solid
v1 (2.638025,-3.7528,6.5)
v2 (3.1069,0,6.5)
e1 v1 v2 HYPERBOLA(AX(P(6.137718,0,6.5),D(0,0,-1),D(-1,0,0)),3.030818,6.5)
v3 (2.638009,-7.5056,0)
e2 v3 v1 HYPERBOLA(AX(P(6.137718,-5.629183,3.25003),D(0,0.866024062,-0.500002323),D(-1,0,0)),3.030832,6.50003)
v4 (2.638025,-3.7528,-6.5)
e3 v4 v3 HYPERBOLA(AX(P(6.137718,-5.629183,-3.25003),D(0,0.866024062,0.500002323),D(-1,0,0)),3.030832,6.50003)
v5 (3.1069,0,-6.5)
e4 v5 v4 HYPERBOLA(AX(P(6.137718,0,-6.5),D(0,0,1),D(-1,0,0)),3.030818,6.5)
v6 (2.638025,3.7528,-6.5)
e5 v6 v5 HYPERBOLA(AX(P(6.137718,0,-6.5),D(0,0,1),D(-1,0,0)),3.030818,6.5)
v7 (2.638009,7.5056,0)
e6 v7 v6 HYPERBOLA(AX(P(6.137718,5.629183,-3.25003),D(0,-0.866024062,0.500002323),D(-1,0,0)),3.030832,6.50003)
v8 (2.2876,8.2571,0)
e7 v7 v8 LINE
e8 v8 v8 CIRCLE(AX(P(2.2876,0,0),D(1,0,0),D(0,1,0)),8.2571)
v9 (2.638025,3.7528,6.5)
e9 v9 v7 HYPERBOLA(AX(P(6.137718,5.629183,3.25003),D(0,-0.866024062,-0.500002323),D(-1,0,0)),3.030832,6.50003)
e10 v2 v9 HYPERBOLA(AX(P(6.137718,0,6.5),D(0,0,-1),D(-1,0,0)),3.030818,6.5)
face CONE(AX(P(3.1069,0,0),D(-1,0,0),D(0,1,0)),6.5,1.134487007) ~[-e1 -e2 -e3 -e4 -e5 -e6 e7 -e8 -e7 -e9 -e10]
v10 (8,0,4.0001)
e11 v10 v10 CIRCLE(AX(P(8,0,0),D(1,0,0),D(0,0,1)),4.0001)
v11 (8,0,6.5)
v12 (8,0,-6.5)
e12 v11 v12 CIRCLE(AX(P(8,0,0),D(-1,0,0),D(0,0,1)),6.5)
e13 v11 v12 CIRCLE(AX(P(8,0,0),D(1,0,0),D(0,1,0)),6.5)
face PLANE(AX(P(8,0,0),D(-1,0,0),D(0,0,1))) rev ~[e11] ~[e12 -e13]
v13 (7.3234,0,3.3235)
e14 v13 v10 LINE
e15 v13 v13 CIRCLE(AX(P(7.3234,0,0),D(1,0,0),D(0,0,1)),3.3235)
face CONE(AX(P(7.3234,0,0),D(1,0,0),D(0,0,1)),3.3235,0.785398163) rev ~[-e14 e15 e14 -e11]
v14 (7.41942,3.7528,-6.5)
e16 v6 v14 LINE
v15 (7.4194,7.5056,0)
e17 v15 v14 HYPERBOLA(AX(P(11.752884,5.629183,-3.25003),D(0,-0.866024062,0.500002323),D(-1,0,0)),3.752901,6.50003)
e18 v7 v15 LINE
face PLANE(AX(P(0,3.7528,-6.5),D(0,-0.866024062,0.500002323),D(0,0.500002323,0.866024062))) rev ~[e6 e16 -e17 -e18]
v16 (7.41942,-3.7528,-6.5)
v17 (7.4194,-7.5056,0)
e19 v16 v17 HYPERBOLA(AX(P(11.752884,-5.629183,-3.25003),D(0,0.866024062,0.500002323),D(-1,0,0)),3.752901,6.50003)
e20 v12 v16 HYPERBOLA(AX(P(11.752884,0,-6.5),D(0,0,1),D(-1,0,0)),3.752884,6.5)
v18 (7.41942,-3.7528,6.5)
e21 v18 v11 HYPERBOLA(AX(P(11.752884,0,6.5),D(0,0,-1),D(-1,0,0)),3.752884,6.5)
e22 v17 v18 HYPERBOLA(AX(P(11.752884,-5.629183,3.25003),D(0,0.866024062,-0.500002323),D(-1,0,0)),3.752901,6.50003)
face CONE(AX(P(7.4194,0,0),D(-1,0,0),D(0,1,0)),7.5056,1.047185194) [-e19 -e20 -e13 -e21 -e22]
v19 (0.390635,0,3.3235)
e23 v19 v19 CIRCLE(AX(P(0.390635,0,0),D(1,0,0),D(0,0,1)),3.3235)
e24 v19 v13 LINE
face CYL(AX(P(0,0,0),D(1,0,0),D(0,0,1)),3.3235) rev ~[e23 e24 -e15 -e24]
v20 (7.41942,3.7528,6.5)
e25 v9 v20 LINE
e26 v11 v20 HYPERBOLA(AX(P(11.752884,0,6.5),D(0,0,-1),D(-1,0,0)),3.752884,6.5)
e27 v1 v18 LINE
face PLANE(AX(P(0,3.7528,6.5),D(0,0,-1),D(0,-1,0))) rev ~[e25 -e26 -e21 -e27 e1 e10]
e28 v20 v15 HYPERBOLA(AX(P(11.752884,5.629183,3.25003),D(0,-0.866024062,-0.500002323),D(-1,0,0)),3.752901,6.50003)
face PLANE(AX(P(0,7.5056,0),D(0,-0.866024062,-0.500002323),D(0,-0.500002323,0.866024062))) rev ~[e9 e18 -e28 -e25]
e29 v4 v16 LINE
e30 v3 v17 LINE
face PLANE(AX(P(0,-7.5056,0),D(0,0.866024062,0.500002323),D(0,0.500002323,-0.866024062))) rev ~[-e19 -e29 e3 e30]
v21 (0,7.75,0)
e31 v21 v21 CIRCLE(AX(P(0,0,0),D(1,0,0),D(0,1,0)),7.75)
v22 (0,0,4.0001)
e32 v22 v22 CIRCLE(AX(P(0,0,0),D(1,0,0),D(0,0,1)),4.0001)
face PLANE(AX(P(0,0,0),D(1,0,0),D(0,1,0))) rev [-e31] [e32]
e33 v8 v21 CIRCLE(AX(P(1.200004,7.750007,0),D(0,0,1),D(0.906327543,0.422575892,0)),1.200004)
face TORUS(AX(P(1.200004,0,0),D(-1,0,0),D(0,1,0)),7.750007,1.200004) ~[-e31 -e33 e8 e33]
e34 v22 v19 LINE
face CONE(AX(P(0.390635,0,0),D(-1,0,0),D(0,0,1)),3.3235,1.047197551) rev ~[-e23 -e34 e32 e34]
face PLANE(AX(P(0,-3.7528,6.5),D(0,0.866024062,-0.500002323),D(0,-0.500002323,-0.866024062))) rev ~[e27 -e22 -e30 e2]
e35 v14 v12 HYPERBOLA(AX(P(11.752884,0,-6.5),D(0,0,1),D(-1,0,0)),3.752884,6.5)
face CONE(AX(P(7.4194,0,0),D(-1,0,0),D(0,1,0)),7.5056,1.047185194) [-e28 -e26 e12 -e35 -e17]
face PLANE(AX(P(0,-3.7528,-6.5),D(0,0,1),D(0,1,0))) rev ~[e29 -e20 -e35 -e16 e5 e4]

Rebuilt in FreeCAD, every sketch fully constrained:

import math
import FreeCAD as App
import Part
import Sketcher
from FreeCAD import Vector
Q = App.Units.Quantity


def edges_at(feature, points):
    """Names of the edges that pass closest to the given points."""
    edges = feature.Shape.Edges
    near = lambda p: min(range(len(edges)), key=lambda i: edges[i].distToShape(Part.Vertex(*p))[0])
    return sorted({f"Edge{near(p) + 1}" for p in points})

doc = App.newDocument("Part")
body = doc.addObject("PartDesign::Body", "Body")

# Sketch on XY plane
sketch1 = body.newObject("Sketcher::SketchObject", "Sketch")
sketch1.AttachmentSupport = (doc.getObject("XY_Plane"), [""])
sketch1.MapMode = "FlatFace"
sketch1.addGeometry([
    Part.LineSegment(Vector(0, 7.8, 0), Vector(0, 0, 0)),  # 0
    Part.LineSegment(Vector(0, 0, 0), Vector(3.1, 0, 0)),  # 1
    Part.LineSegment(Vector(3.1, 0, 0), Vector(3.1, 6.5, 0)),  # 2
    Part.LineSegment(Vector(3.1, 6.5, 0), Vector(2.3, 8.3, 0)),  # 3
    Part.ArcOfCircle(Part.Circle(Vector(1.2, 7.8, 0), Vector(0, 0, 1), 1.2), math.radians(25), math.radians(180)),  # 4
], False)
sketch1.addConstraint([
    Sketcher.Constraint("Coincident", 0, 2, 1, 1),
    Sketcher.Constraint("Coincident", 1, 2, 2, 1),
    Sketcher.Constraint("Coincident", 2, 2, 3, 1),
    Sketcher.Constraint("Tangent", 3, 2, 4, 1),
    Sketcher.Constraint("Tangent", 4, 2, 0, 1),
    Sketcher.Constraint("Vertical", 0),
    Sketcher.Constraint("Horizontal", 1),
    Sketcher.Constraint("Vertical", 2),
    Sketcher.Constraint("Coincident", 0, 2, -1, 1),
    Sketcher.Constraint("Radius", 4, Q("1.2 mm")),
    Sketcher.Constraint("DistanceY", 2, 1, 2, 2, Q("6.5 mm")),
    Sketcher.Constraint("DistanceY", 0, 2, 0, 1, Q("7.75 mm")),
    Sketcher.Constraint("DistanceX", 1, 1, 1, 2, Q("3.107 mm")),
])
revolution = body.newObject("PartDesign::Revolution", "Revolution")
revolution.Profile = sketch1
revolution.ReferenceAxis = (sketch1, ["H_Axis"])
revolution.Angle = 360

# Sketch on YZ plane
sketch2 = body.newObject("Sketcher::SketchObject", "Sketch001")
sketch2.AttachmentSupport = (doc.getObject("YZ_Plane"), [""])
sketch2.MapMode = "FlatFace"
sketch2.addGeometry([
    Part.LineSegment(Vector(4, -6, 0), Vector(-4, -6, 0)),  # 0
    Part.LineSegment(Vector(-4, -6, 0), Vector(-8, 0, 0)),  # 1
    Part.LineSegment(Vector(-8, 0, 0), Vector(-4, 6, 0)),  # 2
    Part.LineSegment(Vector(-4, 6, 0), Vector(4, 6, 0)),  # 3
    Part.LineSegment(Vector(4, 6, 0), Vector(8, 0, 0)),  # 4
    Part.LineSegment(Vector(8, 0, 0), Vector(4, -6, 0)),  # 5
], False)
sketch2.addConstraint([
    Sketcher.Constraint("Coincident", 0, 2, 1, 1),
    Sketcher.Constraint("Coincident", 1, 2, 2, 1),
    Sketcher.Constraint("Coincident", 2, 2, 3, 1),
    Sketcher.Constraint("Coincident", 3, 2, 4, 1),
    Sketcher.Constraint("Coincident", 4, 2, 5, 1),
    Sketcher.Constraint("Coincident", 5, 2, 0, 1),
    Sketcher.Constraint("Horizontal", 0),
    Sketcher.Constraint("Horizontal", 3),
    Sketcher.Constraint("Symmetric", 0, 2, 3, 2, -1, 1),
    Sketcher.Constraint("Symmetric", 1, 2, 4, 2, -1, 1),
    Sketcher.Constraint("PointOnObject", 1, 2, -1),
    Sketcher.Constraint("Parallel", 2, 5),
    Sketcher.Constraint("Vertical", 0, 2, 2, 2),
    Sketcher.Constraint("Angle", 1, Q("120.0002 deg")),
    Sketcher.Constraint("DistanceY", 0, 2, 2, 2, Q("13 mm")),
    Sketcher.Constraint("DistanceX", 1, 2, 4, 2, Q("15.0112 mm")),
])
pad1 = body.newObject("PartDesign::Pad", "Pad")
pad1.Profile = sketch2
pad1.Length = 8

# Sketch on XY plane
sketch3 = body.newObject("Sketcher::SketchObject", "Sketch002")
sketch3.AttachmentSupport = (doc.getObject("XY_Plane"), [""])
sketch3.MapMode = "FlatFace"
sketch3.addGeometry([
    Part.LineSegment(Vector(8, 7.5, 0), Vector(7.4, 7.5, 0)),
    Part.LineSegment(Vector(7.4, 7.5, 0), Vector(8, 6.5, 0)),
    Part.LineSegment(Vector(8, 6.5, 0), Vector(8, 7.5, 0)),
], False)
sketch3.addConstraint([
    Sketcher.Constraint("Coincident", 0, 2, 1, 1),
    Sketcher.Constraint("Coincident", 1, 2, 2, 1),
    Sketcher.Constraint("Coincident", 2, 2, 0, 1),
    Sketcher.Constraint("Horizontal", 0),
    Sketcher.Constraint("Vertical", 2),
    Sketcher.Constraint("Angle", 1, Q("-59.9993 deg")),
    Sketcher.Constraint("DistanceX", -1, 1, 1, 2, Q("8 mm")),
    Sketcher.Constraint("DistanceY", -1, 1, 1, 2, Q("6.5 mm")),
    Sketcher.Constraint("DistanceX", 0, 2, 0, 1, Q("0.5806 mm")),
])
groove = body.newObject("PartDesign::Groove", "Groove")
groove.Profile = sketch3
groove.ReferenceAxis = (sketch3, ["H_Axis"])
groove.Angle = 360

# Sketch on YZ plane
sketch4 = body.newObject("Sketcher::SketchObject", "Sketch003")
sketch4.AttachmentSupport = (doc.getObject("YZ_Plane"), [""])
sketch4.MapMode = "FlatFace"
sketch4.addGeometry(Part.Circle(Vector(0, 0, 0), Vector(0, 0, 1), 3.3), False)
sketch4.addConstraint([
    Sketcher.Constraint("Coincident", 0, 3, -1, 1),
    Sketcher.Constraint("Diameter", 0, Q("6.647 mm")),
])
doc.recompute()
hole = body.newObject("PartDesign::Hole", "Hole")
hole.Profile = sketch4
hole.ThreadType = "None"
hole.Diameter = 6.647
hole.DepthType = "ThroughAll"
hole.Reversed = True
doc.recompute()

chamfer = body.newObject("PartDesign::Chamfer", "Chamfer")
chamfer.Base = (hole, edges_at(hole, [(0, 0, -3.324)]))
chamfer.ChamferType = "Distance and Angle"
chamfer.Size = 0.6766
chamfer.Angle = 30
doc.recompute()

chamfer2 = body.newObject("PartDesign::Chamfer", "Chamfer001")
chamfer2.Base = (chamfer, edges_at(chamfer, [(8, 0, -3.324)]))
chamfer2.Size = 0.6766

doc.recompute()
